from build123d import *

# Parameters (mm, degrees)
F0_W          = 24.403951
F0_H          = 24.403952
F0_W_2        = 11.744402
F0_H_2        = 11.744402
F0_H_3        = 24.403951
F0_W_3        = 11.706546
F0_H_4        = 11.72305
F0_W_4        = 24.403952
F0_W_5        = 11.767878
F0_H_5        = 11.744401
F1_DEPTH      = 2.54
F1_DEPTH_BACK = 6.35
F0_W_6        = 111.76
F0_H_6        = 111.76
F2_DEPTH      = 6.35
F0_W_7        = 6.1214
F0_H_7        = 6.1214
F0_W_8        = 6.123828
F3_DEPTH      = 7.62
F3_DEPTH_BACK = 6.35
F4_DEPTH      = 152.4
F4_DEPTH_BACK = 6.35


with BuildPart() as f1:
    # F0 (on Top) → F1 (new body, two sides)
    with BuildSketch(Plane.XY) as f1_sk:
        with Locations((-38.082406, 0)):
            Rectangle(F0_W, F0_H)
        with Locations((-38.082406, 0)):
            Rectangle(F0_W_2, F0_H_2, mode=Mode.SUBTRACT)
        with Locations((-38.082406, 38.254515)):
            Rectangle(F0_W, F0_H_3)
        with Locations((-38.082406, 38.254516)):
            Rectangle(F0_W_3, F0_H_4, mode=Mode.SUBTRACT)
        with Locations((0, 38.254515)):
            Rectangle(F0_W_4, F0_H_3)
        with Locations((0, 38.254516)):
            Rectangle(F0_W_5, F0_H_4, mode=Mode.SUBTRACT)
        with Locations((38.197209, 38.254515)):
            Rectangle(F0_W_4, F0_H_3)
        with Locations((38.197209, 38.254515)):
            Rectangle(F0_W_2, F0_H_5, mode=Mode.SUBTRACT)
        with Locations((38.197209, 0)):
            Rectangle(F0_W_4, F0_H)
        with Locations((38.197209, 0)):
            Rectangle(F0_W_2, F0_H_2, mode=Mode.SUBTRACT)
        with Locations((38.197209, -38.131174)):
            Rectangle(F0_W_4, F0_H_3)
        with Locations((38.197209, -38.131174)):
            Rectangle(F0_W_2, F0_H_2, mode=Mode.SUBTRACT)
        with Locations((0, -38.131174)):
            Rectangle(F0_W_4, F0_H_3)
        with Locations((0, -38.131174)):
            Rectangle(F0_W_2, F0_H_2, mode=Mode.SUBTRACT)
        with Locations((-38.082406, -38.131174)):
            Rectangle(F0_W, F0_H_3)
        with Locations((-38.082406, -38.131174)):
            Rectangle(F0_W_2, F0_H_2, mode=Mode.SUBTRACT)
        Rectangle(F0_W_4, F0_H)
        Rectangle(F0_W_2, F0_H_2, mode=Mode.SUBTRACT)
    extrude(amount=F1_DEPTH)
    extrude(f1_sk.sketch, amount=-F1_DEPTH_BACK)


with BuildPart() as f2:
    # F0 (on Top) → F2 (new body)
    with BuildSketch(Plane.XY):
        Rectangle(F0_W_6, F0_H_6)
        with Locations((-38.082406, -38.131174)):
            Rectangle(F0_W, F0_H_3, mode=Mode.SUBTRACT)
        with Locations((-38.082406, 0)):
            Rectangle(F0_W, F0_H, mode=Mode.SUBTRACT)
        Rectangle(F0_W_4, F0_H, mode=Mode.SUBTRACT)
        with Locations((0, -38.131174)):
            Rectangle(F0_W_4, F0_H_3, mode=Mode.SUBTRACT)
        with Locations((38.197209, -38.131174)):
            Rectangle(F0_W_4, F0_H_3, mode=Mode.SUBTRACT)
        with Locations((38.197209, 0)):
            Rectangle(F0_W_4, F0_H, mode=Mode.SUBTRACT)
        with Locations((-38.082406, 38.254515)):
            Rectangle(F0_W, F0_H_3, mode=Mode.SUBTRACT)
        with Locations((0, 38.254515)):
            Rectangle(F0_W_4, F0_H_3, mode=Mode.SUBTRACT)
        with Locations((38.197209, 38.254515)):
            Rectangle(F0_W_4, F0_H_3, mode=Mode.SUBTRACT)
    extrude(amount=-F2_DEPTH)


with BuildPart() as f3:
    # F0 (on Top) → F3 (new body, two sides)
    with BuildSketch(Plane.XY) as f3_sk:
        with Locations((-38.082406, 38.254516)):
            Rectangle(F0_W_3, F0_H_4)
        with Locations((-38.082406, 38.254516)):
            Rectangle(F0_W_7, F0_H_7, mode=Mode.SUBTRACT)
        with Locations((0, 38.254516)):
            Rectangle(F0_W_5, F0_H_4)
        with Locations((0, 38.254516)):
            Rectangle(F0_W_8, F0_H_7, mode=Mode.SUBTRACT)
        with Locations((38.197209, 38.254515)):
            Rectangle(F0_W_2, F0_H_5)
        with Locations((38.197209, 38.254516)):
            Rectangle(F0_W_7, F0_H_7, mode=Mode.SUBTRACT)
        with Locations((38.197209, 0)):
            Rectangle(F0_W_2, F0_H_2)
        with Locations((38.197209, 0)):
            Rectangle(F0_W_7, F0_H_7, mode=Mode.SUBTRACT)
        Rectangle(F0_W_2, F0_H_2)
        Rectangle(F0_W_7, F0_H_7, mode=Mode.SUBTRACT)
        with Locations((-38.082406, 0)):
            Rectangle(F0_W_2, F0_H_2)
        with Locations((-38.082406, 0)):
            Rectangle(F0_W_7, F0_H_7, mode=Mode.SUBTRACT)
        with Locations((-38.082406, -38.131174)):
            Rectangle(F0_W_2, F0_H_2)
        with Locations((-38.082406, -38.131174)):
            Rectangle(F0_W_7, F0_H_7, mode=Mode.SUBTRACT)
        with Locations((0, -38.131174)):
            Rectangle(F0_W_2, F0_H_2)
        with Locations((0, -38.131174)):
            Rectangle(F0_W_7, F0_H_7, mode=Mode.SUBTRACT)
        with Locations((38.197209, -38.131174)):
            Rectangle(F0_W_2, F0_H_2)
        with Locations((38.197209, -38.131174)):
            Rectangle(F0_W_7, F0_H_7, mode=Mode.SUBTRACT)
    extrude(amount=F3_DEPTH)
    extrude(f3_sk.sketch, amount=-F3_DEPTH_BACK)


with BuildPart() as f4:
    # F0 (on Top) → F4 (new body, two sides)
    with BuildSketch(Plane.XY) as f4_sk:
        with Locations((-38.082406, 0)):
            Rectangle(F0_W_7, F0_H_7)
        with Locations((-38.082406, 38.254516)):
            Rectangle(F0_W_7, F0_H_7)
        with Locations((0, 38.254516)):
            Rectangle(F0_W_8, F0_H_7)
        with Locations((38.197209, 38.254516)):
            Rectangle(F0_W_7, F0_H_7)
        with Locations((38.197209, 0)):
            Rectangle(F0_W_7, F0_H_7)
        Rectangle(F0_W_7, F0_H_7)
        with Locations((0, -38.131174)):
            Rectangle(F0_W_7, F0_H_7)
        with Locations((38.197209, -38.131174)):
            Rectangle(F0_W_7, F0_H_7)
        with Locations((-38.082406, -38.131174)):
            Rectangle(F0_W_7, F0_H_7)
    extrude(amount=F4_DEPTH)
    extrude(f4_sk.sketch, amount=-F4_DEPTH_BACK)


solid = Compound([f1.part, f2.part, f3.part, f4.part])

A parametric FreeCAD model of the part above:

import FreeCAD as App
import Part
import Sketcher

V = App.Vector
Q = App.Units.Quantity


def add_polygon(sketch, points):
    """Adds a closed chain of lines whose ends are joined by coincident constraints."""
    first, n = sketch.GeometryCount, len(points)
    for a, b in zip(points, points[1:] + points[:1]):
        sketch.addGeometry(Part.LineSegment(App.Vector(*a, 0), App.Vector(*b, 0)), False)
    for i in range(n):
        sketch.addConstraint(Sketcher.Constraint("Coincident", first + i, 2, first + (i + 1) % n, 1))

doc = App.newDocument("Part")
body = doc.addObject("PartDesign::Body", "Body")
body.AllowCompound = True

# Sketch on XY plane
sketch1 = doc.addObject("Sketcher::SketchObject", "Sketch")
body.addObject(sketch1)
sketch1.AttachmentSupport = (doc.XY_Plane, [""])
sketch1.MapMode = "FlatFace"
add_polygon(sketch1, [(-50, 12), (-50, -12), (-26, -12), (-26, 12)])  # lines 0-3
add_polygon(sketch1, [(-32, -6), (-44, -6), (-44, 6), (-32, 6)])  # lines 4-7
add_polygon(sketch1, [(-50, 50), (-50, 26), (-26, 26), (-26, 50)])  # lines 8-11
add_polygon(sketch1, [(-32, 32), (-44, 32), (-44, 44), (-32, 44)])  # lines 12-15
add_polygon(sketch1, [(-12, 50), (-12, 26), (12, 26), (12, 50)])  # lines 16-19
add_polygon(sketch1, [(6, 32), (-6, 32), (-6, 44), (6, 44)])  # lines 20-23
add_polygon(sketch1, [(26, 50), (26, 26), (50, 26), (50, 50)])  # lines 24-27
add_polygon(sketch1, [(44, 32), (32, 32), (32, 44), (44, 44)])  # lines 28-31
add_polygon(sketch1, [(26, 12), (26, -12), (50, -12), (50, 12)])  # lines 32-35
add_polygon(sketch1, [(44, -6), (32, -6), (32, 6), (44, 6)])  # lines 36-39
add_polygon(sketch1, [(26, -26), (26, -50), (50, -50), (50, -26)])  # lines 40-43
add_polygon(sketch1, [(44, -44), (32, -44), (32, -32), (44, -32)])  # lines 44-47
add_polygon(sketch1, [(-12, -26), (-12, -50), (12, -50), (12, -26)])  # lines 48-51
add_polygon(sketch1, [(6, -44), (-6, -44), (-6, -32), (6, -32)])  # lines 52-55
add_polygon(sketch1, [(-50, -26), (-50, -50), (-26, -50), (-26, -26)])  # lines 56-59
add_polygon(sketch1, [(-32, -44), (-44, -44), (-44, -32), (-32, -32)])  # lines 60-63
add_polygon(sketch1, [(-12, 12), (-12, -12), (12, -12), (12, 12)])  # lines 64-67
add_polygon(sketch1, [(6, -6), (-6, -6), (-6, 6), (6, 6)])  # lines 68-71
sketch1.addConstraint([
    Sketcher.Constraint("Vertical", 0),
    Sketcher.Constraint("Horizontal", 1),
    Sketcher.Constraint("Vertical", 2),
    Sketcher.Constraint("Horizontal", 3),
    Sketcher.Constraint("Horizontal", 4),
    Sketcher.Constraint("Vertical", 5),
    Sketcher.Constraint("Horizontal", 6),
    Sketcher.Constraint("Vertical", 7),
    Sketcher.Constraint("Vertical", 8),
    Sketcher.Constraint("Horizontal", 9),
    Sketcher.Constraint("Vertical", 10),
    Sketcher.Constraint("Horizontal", 11),
    Sketcher.Constraint("Horizontal", 12),
    Sketcher.Constraint("Vertical", 13),
    Sketcher.Constraint("Horizontal", 14),
    Sketcher.Constraint("Vertical", 15),
    Sketcher.Constraint("Vertical", 16),
    Sketcher.Constraint("Horizontal", 17),
    Sketcher.Constraint("Vertical", 18),
    Sketcher.Constraint("Horizontal", 19),
    Sketcher.Constraint("Horizontal", 20),
    Sketcher.Constraint("Vertical", 21),
    Sketcher.Constraint("Horizontal", 22),
    Sketcher.Constraint("Vertical", 23),
    Sketcher.Constraint("Vertical", 24),
    Sketcher.Constraint("Horizontal", 25),
    Sketcher.Constraint("Vertical", 26),
    Sketcher.Constraint("Horizontal", 27),
    Sketcher.Constraint("Horizontal", 28),
    Sketcher.Constraint("Vertical", 29),
    Sketcher.Constraint("Horizontal", 30),
    Sketcher.Constraint("Vertical", 31),
    Sketcher.Constraint("Vertical", 32),
    Sketcher.Constraint("Horizontal", 33),
    Sketcher.Constraint("Vertical", 34),
    Sketcher.Constraint("Horizontal", 35),
    Sketcher.Constraint("Horizontal", 36),
    Sketcher.Constraint("Vertical", 37),
    Sketcher.Constraint("Horizontal", 38),
    Sketcher.Constraint("Vertical", 39),
    Sketcher.Constraint("Vertical", 40),
    Sketcher.Constraint("Horizontal", 41),
    Sketcher.Constraint("Vertical", 42),
    Sketcher.Constraint("Horizontal", 43),
    Sketcher.Constraint("Horizontal", 44),
    Sketcher.Constraint("Vertical", 45),
    Sketcher.Constraint("Horizontal", 46),
    Sketcher.Constraint("Vertical", 47),
    Sketcher.Constraint("Vertical", 48),
    Sketcher.Constraint("Horizontal", 49),
    Sketcher.Constraint("Vertical", 50),
    Sketcher.Constraint("Horizontal", 51),
    Sketcher.Constraint("Horizontal", 52),
    Sketcher.Constraint("Vertical", 53),
    Sketcher.Constraint("Horizontal", 54),
    Sketcher.Constraint("Vertical", 55),
    Sketcher.Constraint("Vertical", 56),
    Sketcher.Constraint("Horizontal", 57),
    Sketcher.Constraint("Vertical", 58),
    Sketcher.Constraint("Horizontal", 59),
    Sketcher.Constraint("Horizontal", 60),
    Sketcher.Constraint("Vertical", 61),
    Sketcher.Constraint("Horizontal", 62),
    Sketcher.Constraint("Vertical", 63),
    Sketcher.Constraint("Vertical", 64),
    Sketcher.Constraint("Horizontal", 65),
    Sketcher.Constraint("Vertical", 66),
    Sketcher.Constraint("Horizontal", 67),
    Sketcher.Constraint("Horizontal", 68),
    Sketcher.Constraint("Vertical", 69),
    Sketcher.Constraint("Horizontal", 70),
    Sketcher.Constraint("Vertical", 71),
    Sketcher.Constraint("Symmetric", 64, 2, 66, 2, -1, 1),
    Sketcher.Constraint("Symmetric", 68, 2, 70, 2, -1, 1),
    Sketcher.Constraint("Horizontal", 9, 2, 16, 2),
    Sketcher.Constraint("Horizontal", 11, 2, 18, 2),
    Sketcher.Constraint("Horizontal", 15, 2, 20, 2),
    Sketcher.Constraint("Horizontal", 14, 2, 21, 2),
    Sketcher.Constraint("Horizontal", 17, 2, 24, 2),
    Sketcher.Constraint("Horizontal", 19, 2, 26, 2),
    Sketcher.Constraint("Horizontal", 1, 2, 32, 2),
    Sketcher.Constraint("Horizontal", 3, 2, 34, 2),
    Sketcher.Constraint("Horizontal", 7, 2, 36, 2),
    Sketcher.Constraint("Horizontal", 6, 2, 37, 2),
    Sketcher.Constraint("Horizontal", 41, 2, 48, 2),
    Sketcher.Constraint("Horizontal", 43, 2, 50, 2),
    Sketcher.Constraint("Horizontal", 47, 2, 52, 2),
    Sketcher.Constraint("Horizontal", 46, 2, 53, 2),
    Sketcher.Constraint("Horizontal", 49, 2, 56, 2),
    Sketcher.Constraint("Horizontal", 51, 2, 58, 2),
    Sketcher.Constraint("Horizontal", 55, 2, 60, 2),
    Sketcher.Constraint("Horizontal", 54, 2, 61, 2),
    Sketcher.Constraint("Horizontal", 33, 2, 64, 2),
    Sketcher.Constraint("Horizontal", 35, 2, 66, 2),
    Sketcher.Constraint("Horizontal", 39, 2, 68, 2),
    Sketcher.Constraint("Horizontal", 38, 2, 69, 2),
    Sketcher.Constraint("Vertical", 3, 2, 8, 2),
    Sketcher.Constraint("Vertical", 2, 2, 9, 2),
    Sketcher.Constraint("Vertical", 27, 2, 32, 2),
    Sketcher.Constraint("Vertical", 26, 2, 33, 2),
    Sketcher.Constraint("Vertical", 29, 2, 36, 2),
    Sketcher.Constraint("Vertical", 31, 2, 38, 2),
    Sketcher.Constraint("Vertical", 35, 2, 40, 2),
    Sketcher.Constraint("Vertical", 34, 2, 41, 2),
    Sketcher.Constraint("Vertical", 37, 2, 44, 2),
    Sketcher.Constraint("Vertical", 39, 2, 46, 2),
    Sketcher.Constraint("Vertical", 19, 2, 48, 2),
    Sketcher.Constraint("Vertical", 18, 2, 49, 2),
    Sketcher.Constraint("Vertical", 11, 2, 56, 2),
    Sketcher.Constraint("Vertical", 10, 2, 57, 2),
    Sketcher.Constraint("Vertical", 5, 2, 60, 2),
    Sketcher.Constraint("Vertical", 7, 2, 62, 2),
    Sketcher.Constraint("Vertical", 51, 2, 64, 2),
    Sketcher.Constraint("Vertical", 50, 2, 65, 2),
    Sketcher.Constraint("Vertical", 53, 2, 68, 2),
    Sketcher.Constraint("Vertical", 55, 2, 70, 2),
    Sketcher.Constraint("Equal", 11, 17),
    Sketcher.Constraint("Equal", 19, 25),
    Sketcher.Constraint("Equal", 6, 28),
    Sketcher.Constraint("Equal", 46, 52),
    Sketcher.Constraint("Equal", 67, 0),
    Sketcher.Constraint("Equal", 70, 5),
    Sketcher.Constraint("Equal", 2, 8),
    Sketcher.Constraint("Equal", 7, 29),
    Sketcher.Constraint("Equal", 34, 40),
    Sketcher.Constraint("Equal", 39, 45),
    Sketcher.Constraint("DistanceX", 52, 2, 52, 1, Q("11.744402 mm")),
    Sketcher.Constraint("DistanceX", 0, 2, -1, 1, Q("1.9797001 in")),
    Sketcher.Constraint("DistanceX", 1, 1, 1, 2, Q("24.403951 mm")),
    Sketcher.Constraint("DistanceY", 13, 1, 13, 2, Q("11.72305 mm")),
    Sketcher.Constraint("DistanceY", 42, 2, -1, 1, Q("25.929198 mm")),
    Sketcher.Constraint("DistanceX", 12, 2, 12, 1, Q("11.706546 mm")),
    Sketcher.Constraint("DistanceX", 20, 2, 20, 1, Q("11.767878 mm")),
    Sketcher.Constraint("DistanceY", -1, 1, 8, 2, Q("26.05254 mm")),
    Sketcher.Constraint("DistanceX", 12, 2, -1, 1, Q("43.935679 mm")),
    Sketcher.Constraint("DistanceY", -1, 1, 12, 2, Q("32.392991 mm")),
    Sketcher.Constraint("DistanceX", 20, 2, -1, 1, Q("5.883939 mm")),
    Sketcher.Constraint("DistanceX", -1, 1, 30, 2, Q("44.06941 mm")),
    Sketcher.Constraint("DistanceX", 4, 2, -1, 1, Q("43.954607 mm")),
    Sketcher.Constraint("DistanceX", -1, 1, 24, 2, Q("25.995233 mm")),
    Sketcher.Constraint("DistanceY", -1, 1, 28, 2, Q("32.382314 mm")),
    Sketcher.Constraint("DistanceY", 44, 2, -1, 1, Q("44.003375 mm")),
])
pad1 = doc.addObject("PartDesign::Pad", "Pad")
body.addObject(pad1)
pad1.Profile = sketch1
pad1.Type = "TwoLengths"
pad1.Length = Q("0.1 in")
pad1.Length2 = Q("0.25 in")
body2 = doc.addObject("PartDesign::Body", "Body001")

# Sketch on XY plane
sketch2 = doc.addObject("Sketcher::SketchObject", "Sketch001")
body2.addObject(sketch2)
sketch2.AttachmentSupport = (doc.getObject("XY_Plane001"), [""])
sketch2.MapMode = "FlatFace"
add_polygon(sketch2, [(-56, 56), (-56, -56), (56, -56), (56, 56)])  # lines 0-3
add_polygon(sketch2, [(-26, -50), (-50, -50), (-50, -26), (-26, -26)])  # lines 4-7
add_polygon(sketch2, [(12, -50), (-12, -50), (-12, -26), (12, -26)])  # lines 8-11
add_polygon(sketch2, [(-26, -12), (-50, -12), (-50, 12), (-26, 12)])  # lines 12-15
add_polygon(sketch2, [(12, -12), (-12, -12), (-12, 12), (12, 12)])  # lines 16-19
add_polygon(sketch2, [(50, -50), (26, -50), (26, -26), (50, -26)])  # lines 20-23
add_polygon(sketch2, [(50, -12), (26, -12), (26, 12), (50, 12)])  # lines 24-27
add_polygon(sketch2, [(-26, 26), (-50, 26), (-50, 50), (-26, 50)])  # lines 28-31
add_polygon(sketch2, [(12, 26), (-12, 26), (-12, 50), (12, 50)])  # lines 32-35
add_polygon(sketch2, [(50, 26), (26, 26), (26, 50), (50, 50)])  # lines 36-39
sketch2.addConstraint([
    Sketcher.Constraint("Vertical", 0),
    Sketcher.Constraint("Horizontal", 1),
    Sketcher.Constraint("Vertical", 2),
    Sketcher.Constraint("Horizontal", 3),
    Sketcher.Constraint("Horizontal", 4),
    Sketcher.Constraint("Vertical", 5),
    Sketcher.Constraint("Horizontal", 6),
    Sketcher.Constraint("Vertical", 7),
    Sketcher.Constraint("Horizontal", 8),
    Sketcher.Constraint("Vertical", 9),
    Sketcher.Constraint("Horizontal", 10),
    Sketcher.Constraint("Vertical", 11),
    Sketcher.Constraint("Horizontal", 12),
    Sketcher.Constraint("Vertical", 13),
    Sketcher.Constraint("Horizontal", 14),
    Sketcher.Constraint("Vertical", 15),
    Sketcher.Constraint("Horizontal", 16),
    Sketcher.Constraint("Vertical", 17),
    Sketcher.Constraint("Horizontal", 18),
    Sketcher.Constraint("Vertical", 19),
    Sketcher.Constraint("Horizontal", 20),
    Sketcher.Constraint("Vertical", 21),
    Sketcher.Constraint("Horizontal", 22),
    Sketcher.Constraint("Vertical", 23),
    Sketcher.Constraint("Horizontal", 24),
    Sketcher.Constraint("Vertical", 25),
    Sketcher.Constraint("Horizontal", 26),
    Sketcher.Constraint("Vertical", 27),
    Sketcher.Constraint("Horizontal", 28),
    Sketcher.Constraint("Vertical", 29),
    Sketcher.Constraint("Horizontal", 30),
    Sketcher.Constraint("Vertical", 31),
    Sketcher.Constraint("Horizontal", 32),
    Sketcher.Constraint("Vertical", 33),
    Sketcher.Constraint("Horizontal", 34),
    Sketcher.Constraint("Vertical", 35),
    Sketcher.Constraint("Horizontal", 36),
    Sketcher.Constraint("Vertical", 37),
    Sketcher.Constraint("Horizontal", 38),
    Sketcher.Constraint("Vertical", 39),
    Sketcher.Constraint("Symmetric", 0, 2, 2, 2, -1, 1),
    Sketcher.Constraint("Symmetric", 16, 2, 18, 2, -1, 1),
    Sketcher.Constraint("Horizontal", 7, 2, 8, 2),
    Sketcher.Constraint("Horizontal", 6, 2, 9, 2),
    Sketcher.Constraint("Horizontal", 15, 2, 16, 2),
    Sketcher.Constraint("Horizontal", 14, 2, 17, 2),
    Sketcher.Constraint("Horizontal", 11, 2, 20, 2),
    Sketcher.Constraint("Horizontal", 10, 2, 21, 2),
    Sketcher.Constraint("Horizontal", 19, 2, 24, 2),
    Sketcher.Constraint("Horizontal", 18, 2, 25, 2),
    Sketcher.Constraint("Horizontal", 31, 2, 32, 2),
    Sketcher.Constraint("Horizontal", 30, 2, 33, 2),
    Sketcher.Constraint("Horizontal", 35, 2, 36, 2),
    Sketcher.Constraint("Horizontal", 34, 2, 37, 2),
    Sketcher.Constraint("Vertical", 5, 2, 12, 2),
    Sketcher.Constraint("Vertical", 7, 2, 14, 2),
    Sketcher.Constraint("Vertical", 9, 2, 16, 2),
    Sketcher.Constraint("Vertical", 11, 2, 18, 2),
    Sketcher.Constraint("Vertical", 21, 2, 24, 2),
    Sketcher.Constraint("Vertical", 23, 2, 26, 2),
    Sketcher.Constraint("Vertical", 13, 2, 28, 2),
    Sketcher.Constraint("Vertical", 15, 2, 30, 2),
    Sketcher.Constraint("Vertical", 17, 2, 32, 2),
    Sketcher.Constraint("Vertical", 19, 2, 34, 2),
    Sketcher.Constraint("Vertical", 25, 2, 36, 2),
    Sketcher.Constraint("Vertical", 27, 2, 38, 2),
    Sketcher.Constraint("Equal", 6, 8),
    Sketcher.Constraint("Equal", 18, 20),
    Sketcher.Constraint("Equal", 3, 0),
    Sketcher.Constraint("Equal", 38, 5),
    Sketcher.Constraint("Equal", 11, 13),
    Sketcher.Constraint("Equal", 27, 29),
    Sketcher.Constraint("DistanceX", 1, 1, 1, 2, Q("4.4 in")),
    Sketcher.Constraint("DistanceX", 4, 2, -1, 1, Q("1.9797001 in")),
    Sketcher.Constraint("DistanceX", 4, 2, 4, 1, Q("24.403951 mm")),
    Sketcher.Constraint("DistanceY", 5, 2, -1, 1, Q("25.929198 mm")),
    Sketcher.Constraint("DistanceY", -1, 1, 28, 2, Q("26.05254 mm")),
    Sketcher.Constraint("DistanceX", 8, 2, 20, 2, Q("38.197209 mm")),
])
pad2 = doc.addObject("PartDesign::Pad", "Pad001")
body2.addObject(pad2)
pad2.Profile = sketch2
pad2.Length = Q("0.25 in")
pad2.Reversed = True
body3 = doc.addObject("PartDesign::Body", "Body002")
body3.AllowCompound = True

# Sketch on XY plane
sketch3 = doc.addObject("Sketcher::SketchObject", "Sketch002")
body3.addObject(sketch3)
sketch3.AttachmentSupport = (doc.getObject("XY_Plane002"), [""])
sketch3.MapMode = "FlatFace"
add_polygon(sketch3, [(-44, 44), (-44, 32), (-32, 32), (-32, 44)])  # lines 0-3
add_polygon(sketch3, [(-35, 35), (-41, 35), (-41, 41), (-35, 41)])  # lines 4-7
add_polygon(sketch3, [(-6, 44), (-6, 32), (6, 32), (6, 44)])  # lines 8-11
add_polygon(sketch3, [(3, 35), (-3, 35), (-3, 41), (3, 41)])  # lines 12-15
add_polygon(sketch3, [(32, 44), (32, 32), (44, 32), (44, 44)])  # lines 16-19
add_polygon(sketch3, [(41, 35), (35, 35), (35, 41), (41, 41)])  # lines 20-23
add_polygon(sketch3, [(32, 6), (32, -6), (44, -6), (44, 6)])  # lines 24-27
add_polygon(sketch3, [(41, -3), (35, -3), (35, 3), (41, 3)])  # lines 28-31
add_polygon(sketch3, [(-6, 6), (-6, -6), (6, -6), (6, 6)])  # lines 32-35
add_polygon(sketch3, [(3, -3), (-3, -3), (-3, 3), (3, 3)])  # lines 36-39
add_polygon(sketch3, [(-44, 6), (-44, -6), (-32, -6), (-32, 6)])  # lines 40-43
add_polygon(sketch3, [(-35, -3), (-41, -3), (-41, 3), (-35, 3)])  # lines 44-47
add_polygon(sketch3, [(-44, -32), (-44, -44), (-32, -44), (-32, -32)])  # lines 48-51
add_polygon(sketch3, [(-35, -41), (-41, -41), (-41, -35), (-35, -35)])  # lines 52-55
add_polygon(sketch3, [(-6, -32), (-6, -44), (6, -44), (6, -32)])  # lines 56-59
add_polygon(sketch3, [(3, -41), (-3, -41), (-3, -35), (3, -35)])  # lines 60-63
add_polygon(sketch3, [(32, -32), (32, -44), (44, -44), (44, -32)])  # lines 64-67
add_polygon(sketch3, [(41, -41), (35, -41), (35, -35), (41, -35)])  # lines 68-71
sketch3.addConstraint([
    Sketcher.Constraint("Vertical", 0),
    Sketcher.Constraint("Horizontal", 1),
    Sketcher.Constraint("Vertical", 2),
    Sketcher.Constraint("Horizontal", 3),
    Sketcher.Constraint("Horizontal", 4),
    Sketcher.Constraint("Vertical", 5),
    Sketcher.Constraint("Horizontal", 6),
    Sketcher.Constraint("Vertical", 7),
    Sketcher.Constraint("Vertical", 8),
    Sketcher.Constraint("Horizontal", 9),
    Sketcher.Constraint("Vertical", 10),
    Sketcher.Constraint("Horizontal", 11),
    Sketcher.Constraint("Horizontal", 12),
    Sketcher.Constraint("Vertical", 13),
    Sketcher.Constraint("Horizontal", 14),
    Sketcher.Constraint("Vertical", 15),
    Sketcher.Constraint("Vertical", 16),
    Sketcher.Constraint("Horizontal", 17),
    Sketcher.Constraint("Vertical", 18),
    Sketcher.Constraint("Horizontal", 19),
    Sketcher.Constraint("Horizontal", 20),
    Sketcher.Constraint("Vertical", 21),
    Sketcher.Constraint("Horizontal", 22),
    Sketcher.Constraint("Vertical", 23),
    Sketcher.Constraint("Vertical", 24),
    Sketcher.Constraint("Horizontal", 25),
    Sketcher.Constraint("Vertical", 26),
    Sketcher.Constraint("Horizontal", 27),
    Sketcher.Constraint("Horizontal", 28),
    Sketcher.Constraint("Vertical", 29),
    Sketcher.Constraint("Horizontal", 30),
    Sketcher.Constraint("Vertical", 31),
    Sketcher.Constraint("Vertical", 32),
    Sketcher.Constraint("Horizontal", 33),
    Sketcher.Constraint("Vertical", 34),
    Sketcher.Constraint("Horizontal", 35),
    Sketcher.Constraint("Horizontal", 36),
    Sketcher.Constraint("Vertical", 37),
    Sketcher.Constraint("Horizontal", 38),
    Sketcher.Constraint("Vertical", 39),
    Sketcher.Constraint("Vertical", 40),
    Sketcher.Constraint("Horizontal", 41),
    Sketcher.Constraint("Vertical", 42),
    Sketcher.Constraint("Horizontal", 43),
    Sketcher.Constraint("Horizontal", 44),
    Sketcher.Constraint("Vertical", 45),
    Sketcher.Constraint("Horizontal", 46),
    Sketcher.Constraint("Vertical", 47),
    Sketcher.Constraint("Vertical", 48),
    Sketcher.Constraint("Horizontal", 49),
    Sketcher.Constraint("Vertical", 50),
    Sketcher.Constraint("Horizontal", 51),
    Sketcher.Constraint("Horizontal", 52),
    Sketcher.Constraint("Vertical", 53),
    Sketcher.Constraint("Horizontal", 54),
    Sketcher.Constraint("Vertical", 55),
    Sketcher.Constraint("Vertical", 56),
    Sketcher.Constraint("Horizontal", 57),
    Sketcher.Constraint("Vertical", 58),
    Sketcher.Constraint("Horizontal", 59),
    Sketcher.Constraint("Horizontal", 60),
    Sketcher.Constraint("Vertical", 61),
    Sketcher.Constraint("Horizontal", 62),
    Sketcher.Constraint("Vertical", 63),
    Sketcher.Constraint("Vertical", 64),
    Sketcher.Constraint("Horizontal", 65),
    Sketcher.Constraint("Vertical", 66),
    Sketcher.Constraint("Horizontal", 67),
    Sketcher.Constraint("Horizontal", 68),
    Sketcher.Constraint("Vertical", 69),
    Sketcher.Constraint("Horizontal", 70),
    Sketcher.Constraint("Vertical", 71),
    Sketcher.Constraint("Symmetric", 32, 2, 34, 2, -1, 1),
    Sketcher.Constraint("Symmetric", 36, 2, 38, 2, -1, 1),
    Sketcher.Constraint("Horizontal", 1, 2, 8, 2),
    Sketcher.Constraint("Horizontal", 3, 2, 10, 2),
    Sketcher.Constraint("Horizontal", 7, 2, 12, 2),
    Sketcher.Constraint("Horizontal", 6, 2, 13, 2),
    Sketcher.Constraint("Horizontal", 15, 2, 20, 2),
    Sketcher.Constraint("Horizontal", 14, 2, 21, 2),
    Sketcher.Constraint("Horizontal", 25, 2, 32, 2),
    Sketcher.Constraint("Horizontal", 27, 2, 34, 2),
    Sketcher.Constraint("Horizontal", 31, 2, 36, 2),
    Sketcher.Constraint("Horizontal", 30, 2, 37, 2),
    Sketcher.Constraint("Horizontal", 33, 2, 40, 2),
    Sketcher.Constraint("Horizontal", 35, 2, 42, 2),
    Sketcher.Constraint("Horizontal", 39, 2, 44, 2),
    Sketcher.Constraint("Horizontal", 38, 2, 45, 2),
    Sketcher.Constraint("Horizontal", 49, 2, 56, 2),
    Sketcher.Constraint("Horizontal", 51, 2, 58, 2),
    Sketcher.Constraint("Horizontal", 55, 2, 60, 2),
    Sketcher.Constraint("Horizontal", 54, 2, 61, 2),
    Sketcher.Constraint("Horizontal", 57, 2, 64, 2),
    Sketcher.Constraint("Horizontal", 59, 2, 66, 2),
    Sketcher.Constraint("Horizontal", 63, 2, 68, 2),
    Sketcher.Constraint("Horizontal", 62, 2, 69, 2),
    Sketcher.Constraint("Vertical", 19, 2, 24, 2),
    Sketcher.Constraint("Vertical", 18, 2, 25, 2),
    Sketcher.Constraint("Vertical", 21, 2, 28, 2),
    Sketcher.Constraint("Vertical", 23, 2, 30, 2),
    Sketcher.Constraint("Vertical", 5, 2, 44, 2),
    Sketcher.Constraint("Vertical", 7, 2, 46, 2),
    Sketcher.Constraint("Vertical", 43, 2, 48, 2),
    Sketcher.Constraint("Vertical", 42, 2, 49, 2),
    Sketcher.Constraint("Vertical", 45, 2, 52, 2),
    Sketcher.Constraint("Vertical", 47, 2, 54, 2),
    Sketcher.Constraint("Vertical", 35, 2, 56, 2),
    Sketcher.Constraint("Vertical", 34, 2, 57, 2),
    Sketcher.Constraint("Vertical", 37, 2, 60, 2),
    Sketcher.Constraint("Vertical", 39, 2, 62, 2),
    Sketcher.Constraint("Vertical", 27, 2, 64, 2),
    Sketcher.Constraint("Vertical", 26, 2, 65, 2),
    Sketcher.Constraint("Vertical", 29, 2, 68, 2),
    Sketcher.Constraint("Vertical", 31, 2, 70, 2),
    Sketcher.Constraint("Equal", 6, 20),
    Sketcher.Constraint("Equal", 27, 33),
    Sketcher.Constraint("Equal", 30, 36),
    Sketcher.Constraint("Equal", 35, 41),
    Sketcher.Constraint("Equal", 70, 5),
    Sketcher.Constraint("Equal", 67, 16),
    Sketcher.Constraint("Equal", 18, 24),
    Sketcher.Constraint("Equal", 23, 29),
    Sketcher.Constraint("Equal", 42, 48),
    Sketcher.Constraint("Equal", 47, 53),
    Sketcher.Constraint("DistanceX", 4, 2, 4, 1, Q("0.241 in")),
    Sketcher.Constraint("DistanceX", 33, 1, 33, 2, Q("11.744402 mm")),
    Sketcher.Constraint("DistanceY", 0, 2, 0, 1, Q("11.72305 mm")),
    Sketcher.Constraint("DistanceX", 1, 1, 1, 2, Q("11.706546 mm")),
    Sketcher.Constraint("DistanceX", 9, 1, 9, 2, Q("11.767878 mm")),
    Sketcher.Constraint("DistanceX", 12, 2, 12, 1, Q("6.123828 mm")),
    Sketcher.Constraint("DistanceX", 0, 2, -1, 1, Q("43.935679 mm")),
    Sketcher.Constraint("DistanceY", -1, 1, 0, 2, Q("32.392991 mm")),
    Sketcher.Constraint("DistanceX", 8, 2, -1, 1, Q("5.883939 mm")),
    Sketcher.Constraint("DistanceX", -1, 1, 17, 2, Q("44.06941 mm")),
    Sketcher.Constraint("DistanceX", -1, 1, 20, 2, Q("35.136509 mm")),
    Sketcher.Constraint("DistanceX", 4, 2, -1, 1, Q("41.143106 mm")),
    Sketcher.Constraint("DistanceY", -1, 1, 4, 2, Q("35.193816 mm")),
    Sketcher.Constraint("DistanceX", 12, 2, -1, 1, Q("3.061914 mm")),
    Sketcher.Constraint("DistanceY", -1, 1, 16, 2, Q("32.382314 mm")),
    Sketcher.Constraint("DistanceX", 40, 2, -1, 1, Q("43.954607 mm")),
    Sketcher.Constraint("DistanceY", 48, 2, -1, 1, Q("44.003375 mm")),
    Sketcher.Constraint("DistanceY", 52, 2, -1, 1, Q("41.191874 mm")),
])
pad3 = doc.addObject("PartDesign::Pad", "Pad002")
body3.addObject(pad3)
pad3.Profile = sketch3
pad3.Type = "TwoLengths"
pad3.Length = Q("0.3 in")
pad3.Length2 = Q("0.25 in")
body4 = doc.addObject("PartDesign::Body", "Body003")
body4.AllowCompound = True

# Sketch on XY plane
sketch4 = doc.addObject("Sketcher::SketchObject", "Sketch003")
body4.addObject(sketch4)
sketch4.AttachmentSupport = (doc.getObject("XY_Plane003"), [""])
sketch4.MapMode = "FlatFace"
add_polygon(sketch4, [(-41, 3), (-41, -3), (-35, -3), (-35, 3)])  # lines 0-3
add_polygon(sketch4, [(-41, 41), (-41, 35), (-35, 35), (-35, 41)])  # lines 4-7
add_polygon(sketch4, [(-3, 41), (-3, 35), (3, 35), (3, 41)])  # lines 8-11
add_polygon(sketch4, [(35, 41), (35, 35), (41, 35), (41, 41)])  # lines 12-15
add_polygon(sketch4, [(35, 3), (35, -3), (41, -3), (41, 3)])  # lines 16-19
add_polygon(sketch4, [(-3, 3), (-3, -3), (3, -3), (3, 3)])  # lines 20-23
add_polygon(sketch4, [(-3, -35), (-3, -41), (3, -41), (3, -35)])  # lines 24-27
add_polygon(sketch4, [(35, -35), (35, -41), (41, -41), (41, -35)])  # lines 28-31
add_polygon(sketch4, [(-41, -35), (-41, -41), (-35, -41), (-35, -35)])  # lines 32-35
sketch4.addConstraint([
    Sketcher.Constraint("Vertical", 0),
    Sketcher.Constraint("Horizontal", 1),
    Sketcher.Constraint("Vertical", 2),
    Sketcher.Constraint("Horizontal", 3),
    Sketcher.Constraint("Vertical", 4),
    Sketcher.Constraint("Horizontal", 5),
    Sketcher.Constraint("Vertical", 6),
    Sketcher.Constraint("Horizontal", 7),
    Sketcher.Constraint("Vertical", 8),
    Sketcher.Constraint("Horizontal", 9),
    Sketcher.Constraint("Vertical", 10),
    Sketcher.Constraint("Horizontal", 11),
    Sketcher.Constraint("Vertical", 12),
    Sketcher.Constraint("Horizontal", 13),
    Sketcher.Constraint("Vertical", 14),
    Sketcher.Constraint("Horizontal", 15),
    Sketcher.Constraint("Vertical", 16),
    Sketcher.Constraint("Horizontal", 17),
    Sketcher.Constraint("Vertical", 18),
    Sketcher.Constraint("Horizontal", 19),
    Sketcher.Constraint("Vertical", 20),
    Sketcher.Constraint("Horizontal", 21),
    Sketcher.Constraint("Vertical", 22),
    Sketcher.Constraint("Horizontal", 23),
    Sketcher.Constraint("Vertical", 24),
    Sketcher.Constraint("Horizontal", 25),
    Sketcher.Constraint("Vertical", 26),
    Sketcher.Constraint("Horizontal", 27),
    Sketcher.Constraint("Vertical", 28),
    Sketcher.Constraint("Horizontal", 29),
    Sketcher.Constraint("Vertical", 30),
    Sketcher.Constraint("Horizontal", 31),
    Sketcher.Constraint("Vertical", 32),
    Sketcher.Constraint("Horizontal", 33),
    Sketcher.Constraint("Vertical", 34),
    Sketcher.Constraint("Horizontal", 35),
    Sketcher.Constraint("Symmetric", 20, 2, 22, 2, -1, 1),
    Sketcher.Constraint("Horizontal", 5, 2, 8, 2),
    Sketcher.Constraint("Horizontal", 7, 2, 10, 2),
    Sketcher.Constraint("Horizontal", 9, 2, 12, 2),
    Sketcher.Constraint("Horizontal", 11, 2, 14, 2),
    Sketcher.Constraint("Horizontal", 1, 2, 16, 2),
    Sketcher.Constraint("Horizontal", 3, 2, 18, 2),
    Sketcher.Constraint("Horizontal", 17, 2, 20, 2),
    Sketcher.Constraint("Horizontal", 19, 2, 22, 2),
    Sketcher.Constraint("Horizontal", 25, 2, 28, 2),
    Sketcher.Constraint("Horizontal", 27, 2, 30, 2),
    Sketcher.Constraint("Horizontal", 29, 2, 32, 2),
    Sketcher.Constraint("Horizontal", 31, 2, 34, 2),
    Sketcher.Constraint("Vertical", 3, 2, 4, 2),
    Sketcher.Constraint("Vertical", 2, 2, 5, 2),
    Sketcher.Constraint("Vertical", 15, 2, 16, 2),
    Sketcher.Constraint("Vertical", 14, 2, 17, 2),
    Sketcher.Constraint("Vertical", 23, 2, 24, 2),
    Sketcher.Constraint("Vertical", 22, 2, 25, 2),
    Sketcher.Constraint("Vertical", 19, 2, 28, 2),
    Sketcher.Constraint("Vertical", 18, 2, 29, 2),
    Sketcher.Constraint("Vertical", 7, 2, 32, 2),
    Sketcher.Constraint("Vertical", 6, 2, 33, 2),
    Sketcher.Constraint("Equal", 7, 13),
    Sketcher.Constraint("Equal", 19, 21),
    Sketcher.Constraint("Equal", 35, 0),
    Sketcher.Constraint("Equal", 2, 4),
    Sketcher.Constraint("Equal", 22, 24),
    Sketcher.Constraint("DistanceX", 1, 1, 1, 2, Q("0.241 in")),
    Sketcher.Constraint("DistanceX", 9, 1, 9, 2, Q("6.123828 mm")),
    Sketcher.Constraint("DistanceX", -1, 1, 12, 2, Q("35.136509 mm")),
    Sketcher.Constraint("DistanceX", 5, 2, 8, 2, Q("31.959792 mm")),
    Sketcher.Constraint("DistanceX", 0, 2, -1, 1, Q("41.143106 mm")),
    Sketcher.Constraint("DistanceY", -1, 1, 4, 2, Q("35.193816 mm")),
    Sketcher.Constraint("DistanceY", 24, 2, -1, 1, Q("41.191874 mm")),
])
pad4 = doc.addObject("PartDesign::Pad", "Pad003")
body4.addObject(pad4)
pad4.Profile = sketch4
pad4.Type = "TwoLengths"
pad4.Length = Q("6 in")
pad4.Length2 = Q("0.25 in")

doc.recompute()
